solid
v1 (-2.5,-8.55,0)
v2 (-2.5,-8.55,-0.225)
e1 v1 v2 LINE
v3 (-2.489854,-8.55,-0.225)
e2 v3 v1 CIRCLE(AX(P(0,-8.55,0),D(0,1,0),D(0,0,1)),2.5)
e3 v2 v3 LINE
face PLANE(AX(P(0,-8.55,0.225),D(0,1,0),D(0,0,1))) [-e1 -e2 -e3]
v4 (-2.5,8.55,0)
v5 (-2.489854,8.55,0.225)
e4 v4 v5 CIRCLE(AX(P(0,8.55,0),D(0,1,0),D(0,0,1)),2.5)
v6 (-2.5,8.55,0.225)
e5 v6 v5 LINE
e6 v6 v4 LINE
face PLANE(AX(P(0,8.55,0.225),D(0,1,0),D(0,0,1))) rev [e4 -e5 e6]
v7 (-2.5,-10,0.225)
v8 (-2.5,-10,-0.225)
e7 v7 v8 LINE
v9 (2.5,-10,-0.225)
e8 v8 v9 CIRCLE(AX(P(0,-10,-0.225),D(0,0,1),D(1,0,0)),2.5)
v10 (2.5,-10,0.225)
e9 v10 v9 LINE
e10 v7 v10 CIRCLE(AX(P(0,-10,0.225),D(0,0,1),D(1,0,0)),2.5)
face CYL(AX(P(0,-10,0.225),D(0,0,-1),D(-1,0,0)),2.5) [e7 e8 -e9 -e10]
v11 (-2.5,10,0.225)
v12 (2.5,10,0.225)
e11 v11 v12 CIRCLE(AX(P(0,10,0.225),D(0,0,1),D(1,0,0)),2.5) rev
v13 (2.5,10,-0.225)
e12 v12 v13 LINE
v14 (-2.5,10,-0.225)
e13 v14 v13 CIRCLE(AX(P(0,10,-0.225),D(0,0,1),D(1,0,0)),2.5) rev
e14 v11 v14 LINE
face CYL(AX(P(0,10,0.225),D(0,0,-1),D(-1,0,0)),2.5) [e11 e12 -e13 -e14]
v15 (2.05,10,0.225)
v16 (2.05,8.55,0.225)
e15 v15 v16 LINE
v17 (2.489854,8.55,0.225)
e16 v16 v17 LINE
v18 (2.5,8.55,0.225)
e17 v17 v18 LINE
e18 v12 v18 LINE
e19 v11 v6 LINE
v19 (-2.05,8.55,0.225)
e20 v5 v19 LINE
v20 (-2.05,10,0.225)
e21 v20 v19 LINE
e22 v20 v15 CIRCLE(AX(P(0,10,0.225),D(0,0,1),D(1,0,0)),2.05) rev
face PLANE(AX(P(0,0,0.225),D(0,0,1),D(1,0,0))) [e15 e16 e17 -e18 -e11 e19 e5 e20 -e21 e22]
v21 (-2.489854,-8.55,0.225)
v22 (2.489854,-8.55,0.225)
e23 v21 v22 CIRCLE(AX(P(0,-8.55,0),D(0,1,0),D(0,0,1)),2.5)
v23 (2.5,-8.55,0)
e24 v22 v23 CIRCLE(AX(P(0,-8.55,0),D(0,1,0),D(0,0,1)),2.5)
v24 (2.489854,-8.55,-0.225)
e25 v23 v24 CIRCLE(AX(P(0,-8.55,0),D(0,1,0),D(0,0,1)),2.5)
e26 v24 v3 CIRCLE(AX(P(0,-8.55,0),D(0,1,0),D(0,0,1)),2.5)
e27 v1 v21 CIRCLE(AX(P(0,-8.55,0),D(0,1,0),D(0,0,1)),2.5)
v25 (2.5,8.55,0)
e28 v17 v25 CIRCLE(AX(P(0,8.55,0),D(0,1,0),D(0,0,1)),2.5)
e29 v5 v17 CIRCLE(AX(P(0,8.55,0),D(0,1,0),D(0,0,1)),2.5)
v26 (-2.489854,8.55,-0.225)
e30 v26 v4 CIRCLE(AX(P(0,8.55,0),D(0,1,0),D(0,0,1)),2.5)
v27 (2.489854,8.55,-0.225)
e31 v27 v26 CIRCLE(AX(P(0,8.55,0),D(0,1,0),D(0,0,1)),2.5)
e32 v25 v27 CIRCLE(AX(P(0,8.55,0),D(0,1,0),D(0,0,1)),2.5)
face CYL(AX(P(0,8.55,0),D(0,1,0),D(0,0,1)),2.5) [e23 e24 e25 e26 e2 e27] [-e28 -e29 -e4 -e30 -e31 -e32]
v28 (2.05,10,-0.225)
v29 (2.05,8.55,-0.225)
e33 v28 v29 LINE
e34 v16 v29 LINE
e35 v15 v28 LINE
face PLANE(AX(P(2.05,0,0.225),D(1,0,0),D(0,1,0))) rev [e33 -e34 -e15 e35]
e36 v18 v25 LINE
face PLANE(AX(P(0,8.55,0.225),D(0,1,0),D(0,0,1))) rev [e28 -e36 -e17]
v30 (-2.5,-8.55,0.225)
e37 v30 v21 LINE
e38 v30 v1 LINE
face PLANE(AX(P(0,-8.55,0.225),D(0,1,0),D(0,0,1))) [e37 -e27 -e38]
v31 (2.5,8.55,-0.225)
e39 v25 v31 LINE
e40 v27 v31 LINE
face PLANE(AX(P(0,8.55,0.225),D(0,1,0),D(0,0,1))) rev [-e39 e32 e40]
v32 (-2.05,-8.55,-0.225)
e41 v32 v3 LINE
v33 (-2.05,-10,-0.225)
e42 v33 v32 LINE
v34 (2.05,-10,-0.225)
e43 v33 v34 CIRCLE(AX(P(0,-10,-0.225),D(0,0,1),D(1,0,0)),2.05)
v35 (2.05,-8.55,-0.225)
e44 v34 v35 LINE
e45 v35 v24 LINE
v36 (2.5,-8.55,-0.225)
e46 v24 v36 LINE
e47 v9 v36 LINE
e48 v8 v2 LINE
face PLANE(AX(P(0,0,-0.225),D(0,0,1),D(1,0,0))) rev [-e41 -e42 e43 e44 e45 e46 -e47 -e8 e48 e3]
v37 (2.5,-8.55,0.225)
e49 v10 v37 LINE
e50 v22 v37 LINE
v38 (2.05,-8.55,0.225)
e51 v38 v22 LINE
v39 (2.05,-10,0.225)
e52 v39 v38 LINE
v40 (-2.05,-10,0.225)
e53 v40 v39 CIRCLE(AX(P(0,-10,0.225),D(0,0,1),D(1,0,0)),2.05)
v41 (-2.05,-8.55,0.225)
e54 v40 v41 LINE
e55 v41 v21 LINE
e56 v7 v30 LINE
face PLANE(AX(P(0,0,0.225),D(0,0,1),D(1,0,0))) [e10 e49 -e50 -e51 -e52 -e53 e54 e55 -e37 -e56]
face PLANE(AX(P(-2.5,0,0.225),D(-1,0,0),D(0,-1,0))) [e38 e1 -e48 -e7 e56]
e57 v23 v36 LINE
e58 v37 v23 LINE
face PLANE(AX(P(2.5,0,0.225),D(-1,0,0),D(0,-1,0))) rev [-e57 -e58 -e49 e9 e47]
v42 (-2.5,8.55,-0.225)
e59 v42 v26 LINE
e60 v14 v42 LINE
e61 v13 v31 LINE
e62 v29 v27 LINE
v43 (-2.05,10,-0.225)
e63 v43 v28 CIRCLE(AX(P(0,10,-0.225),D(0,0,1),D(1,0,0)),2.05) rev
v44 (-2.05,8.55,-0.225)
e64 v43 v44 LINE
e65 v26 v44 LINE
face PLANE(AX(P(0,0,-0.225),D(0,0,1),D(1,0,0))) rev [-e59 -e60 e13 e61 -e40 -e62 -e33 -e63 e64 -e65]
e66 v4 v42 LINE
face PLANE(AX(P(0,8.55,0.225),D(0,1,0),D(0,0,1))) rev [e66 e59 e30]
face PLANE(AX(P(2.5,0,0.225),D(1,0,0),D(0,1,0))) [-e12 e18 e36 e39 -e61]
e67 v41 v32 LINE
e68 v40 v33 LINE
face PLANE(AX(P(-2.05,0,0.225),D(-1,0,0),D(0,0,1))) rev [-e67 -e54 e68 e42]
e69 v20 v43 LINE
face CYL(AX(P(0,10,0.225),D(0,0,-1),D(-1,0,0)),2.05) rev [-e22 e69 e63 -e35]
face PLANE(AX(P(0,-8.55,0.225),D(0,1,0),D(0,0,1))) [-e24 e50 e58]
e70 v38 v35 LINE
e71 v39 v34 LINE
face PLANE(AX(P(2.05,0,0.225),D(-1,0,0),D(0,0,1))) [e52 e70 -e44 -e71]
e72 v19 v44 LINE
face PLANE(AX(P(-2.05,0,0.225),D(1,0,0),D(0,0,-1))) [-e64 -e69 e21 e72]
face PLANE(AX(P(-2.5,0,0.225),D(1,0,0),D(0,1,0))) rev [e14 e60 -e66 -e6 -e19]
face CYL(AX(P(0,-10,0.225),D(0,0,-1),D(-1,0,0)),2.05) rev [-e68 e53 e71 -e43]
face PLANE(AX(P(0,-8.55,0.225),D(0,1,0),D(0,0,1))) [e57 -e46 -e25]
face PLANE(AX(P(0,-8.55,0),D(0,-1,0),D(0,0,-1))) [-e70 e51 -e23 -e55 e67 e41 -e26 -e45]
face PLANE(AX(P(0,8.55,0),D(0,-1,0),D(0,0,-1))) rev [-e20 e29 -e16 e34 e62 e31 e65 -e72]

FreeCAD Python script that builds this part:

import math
import FreeCAD as App
import Part
import Sketcher

V = App.Vector
Q = App.Units.Quantity


def add_polygon(sketch, points):
    """Adds a closed chain of lines whose ends are joined by coincident constraints."""
    first, n = sketch.GeometryCount, len(points)
    for a, b in zip(points, points[1:] + points[:1]):
        sketch.addGeometry(Part.LineSegment(App.Vector(*a, 0), App.Vector(*b, 0)), False)
    for i in range(n):
        sketch.addConstraint(Sketcher.Constraint("Coincident", first + i, 2, first + (i + 1) % n, 1))

doc = App.newDocument("Part")
params = doc.addObject("Spreadsheet::Sheet", "Params")
for row, (alias, value) in enumerate([
    ("sketch1_width", "2.5 mm"),
    ("sketch1_height", "17.1 mm"),
    ("revolution_angle", "360 deg"),
    ("sketch2_radius", "2.5 mm"),
    ("sketch2_radius2", "2.05 mm"),
    ("sketch2_height", "1.45 mm"),
    ("pad1_length", "0.45 mm"),
], start=1):
    params.set(f"A{row}", alias)
    params.set(f"B{row}", "=" + value)
    params.setAlias(f"B{row}", alias)

body = doc.addObject("PartDesign::Body", "Body")

sketch1 = body.newObject("Sketcher::SketchObject", "Sketch")
sketch1.AttachmentSupport = (doc.getObject("XY_Plane"), [""])
sketch1.MapMode = "FlatFace"
add_polygon(sketch1, [(-2.5, 8.6), (-2.5, -8.6), (0, -8.6), (0, 8.6)])
sketch1.addConstraint([
    Sketcher.Constraint("Vertical", 0),
    Sketcher.Constraint("Horizontal", 1),
    Sketcher.Constraint("Vertical", 2),
    Sketcher.Constraint("Horizontal", 3),
    Sketcher.Constraint("Symmetric", 1, 2, 2, 2, -1, 1),
    Sketcher.Constraint("DistanceX", 1, 1, 1, 2, Q("2.5 mm")),
    Sketcher.Constraint("DistanceY", 0, 2, 0, 1, Q("17.1 mm")),
])
sketch1.setExpression("Constraints[9]", "Params.sketch1_width")
sketch1.setExpression("Constraints[10]", "Params.sketch1_height")
revolution = body.newObject("PartDesign::Revolution", "Revolution")
revolution.Profile = sketch1
revolution.ReferenceAxis = (sketch1, ["V_Axis"])
revolution.setExpression("Angle", "Params.revolution_angle")

sketch2 = body.newObject("Sketcher::SketchObject", "Sketch001")
sketch2.AttachmentSupport = (doc.getObject("XY_Plane"), [""])
sketch2.MapMode = "FlatFace"
sketch2.addGeometry([
    Part.LineSegment(V(-2.05, -8.55, 0), V(-2.5, -8.55, 0)),
    Part.LineSegment(V(-2.5, -8.55, 0), V(-2.5, -10, 0)),
    Part.ArcOfCircle(Part.Circle(V(0, -10, 0), V(0, 0, 1), 2.5), math.radians(180), math.radians(360)),
    Part.LineSegment(V(2.5, -10, 0), V(2.5, -8.55, 0)),
    Part.LineSegment(V(2.5, -8.55, 0), V(2.05, -8.55, 0)),
    Part.LineSegment(V(2.05, -8.55, 0), V(2.05, -10, 0)),
    Part.ArcOfCircle(Part.Circle(V(0, -10, 0), V(0, 0, 1), 2.05), math.radians(180), math.radians(360)),
    Part.LineSegment(V(-2.05, -10, 0), V(-2.05, -8.55, 0)),
    Part.ArcOfCircle(Part.Circle(V(0, 10, 0), V(0, 0, 1), 2.5), math.radians(0), math.radians(180)),
    Part.LineSegment(V(-2.5, 10, 0), V(-2.5, 8.55, 0)),
    Part.LineSegment(V(-2.5, 8.55, 0), V(-2.05, 8.55, 0)),
    Part.LineSegment(V(-2.05, 8.55, 0), V(-2.05, 10, 0)),
    Part.ArcOfCircle(Part.Circle(V(0, 10, 0), V(0, 0, 1), 2.05), math.radians(0), math.radians(180)),
    Part.LineSegment(V(2.05, 10, 0), V(2.05, 8.55, 0)),
    Part.LineSegment(V(2.05, 8.55, 0), V(2.5, 8.55, 0)),
    Part.LineSegment(V(2.5, 8.55, 0), V(2.5, 10, 0)),
], False)
sketch2.addConstraint([
    Sketcher.Constraint("Coincident", 0, 2, 1, 1),
    Sketcher.Constraint("Tangent", 1, 2, 2, 1),
    Sketcher.Constraint("Tangent", 2, 2, 3, 1),
    Sketcher.Constraint("Coincident", 3, 2, 4, 1),
    Sketcher.Constraint("Coincident", 4, 2, 5, 1),
    Sketcher.Constraint("Tangent", 5, 2, 6, 2),
    Sketcher.Constraint("Tangent", 6, 1, 7, 1),
    Sketcher.Constraint("Coincident", 7, 2, 0, 1),
    Sketcher.Constraint("Tangent", 8, 2, 9, 1),
    Sketcher.Constraint("Coincident", 9, 2, 10, 1),
    Sketcher.Constraint("Coincident", 10, 2, 11, 1),
    Sketcher.Constraint("Tangent", 11, 2, 12, 2),
    Sketcher.Constraint("Tangent", 12, 1, 13, 1),
    Sketcher.Constraint("Coincident", 13, 2, 14, 1),
    Sketcher.Constraint("Coincident", 14, 2, 15, 1),
    Sketcher.Constraint("Tangent", 15, 2, 8, 1),
    Sketcher.Constraint("Horizontal", 0),
    Sketcher.Constraint("Vertical", 1),
    Sketcher.Constraint("Vertical", 3),
    Sketcher.Constraint("Horizontal", 4),
    Sketcher.Constraint("Vertical", 5),
    Sketcher.Constraint("Vertical", 7),
    Sketcher.Constraint("Vertical", 9),
    Sketcher.Constraint("Horizontal", 10),
    Sketcher.Constraint("Vertical", 11),
    Sketcher.Constraint("Vertical", 13),
    Sketcher.Constraint("Horizontal", 14),
    Sketcher.Constraint("Vertical", 15),
    Sketcher.Constraint("Coincident", 6, 3, 2, 3),
    Sketcher.Constraint("Coincident", 12, 3, 8, 3),
    Sketcher.Constraint("Equal", 2, 8),
    Sketcher.Constraint("Equal", 6, 12),
    Sketcher.Constraint("Symmetric", 2, 3, 8, 3, -1, 1),
    Sketcher.Constraint("Symmetric", 0, 2, 3, 2, -2),
    Sketcher.Constraint("Horizontal", 10, 2, 13, 2),
    Sketcher.Constraint("Equal", 7, 9),
    Sketcher.Constraint("Radius", 2, Q("2.5 mm")),
    Sketcher.Constraint("Radius", 6, Q("2.05 mm")),
    Sketcher.Constraint("DistanceY", 2, 3, -1, 1, Q("10 mm")),
    Sketcher.Constraint("DistanceY", 1, 2, 1, 1, Q("1.45 mm")),
])
sketch2.setExpression("Constraints[36]", "Params.sketch2_radius")
sketch2.setExpression("Constraints[37]", "Params.sketch2_radius2")
sketch2.setExpression("Constraints[39]", "Params.sketch2_height")
pad1 = body.newObject("PartDesign::Pad", "Pad")
pad1.Profile = sketch2
pad1.setExpression("Length", "Params.pad1_length")
pad1.Midplane = True

doc.recompute()
